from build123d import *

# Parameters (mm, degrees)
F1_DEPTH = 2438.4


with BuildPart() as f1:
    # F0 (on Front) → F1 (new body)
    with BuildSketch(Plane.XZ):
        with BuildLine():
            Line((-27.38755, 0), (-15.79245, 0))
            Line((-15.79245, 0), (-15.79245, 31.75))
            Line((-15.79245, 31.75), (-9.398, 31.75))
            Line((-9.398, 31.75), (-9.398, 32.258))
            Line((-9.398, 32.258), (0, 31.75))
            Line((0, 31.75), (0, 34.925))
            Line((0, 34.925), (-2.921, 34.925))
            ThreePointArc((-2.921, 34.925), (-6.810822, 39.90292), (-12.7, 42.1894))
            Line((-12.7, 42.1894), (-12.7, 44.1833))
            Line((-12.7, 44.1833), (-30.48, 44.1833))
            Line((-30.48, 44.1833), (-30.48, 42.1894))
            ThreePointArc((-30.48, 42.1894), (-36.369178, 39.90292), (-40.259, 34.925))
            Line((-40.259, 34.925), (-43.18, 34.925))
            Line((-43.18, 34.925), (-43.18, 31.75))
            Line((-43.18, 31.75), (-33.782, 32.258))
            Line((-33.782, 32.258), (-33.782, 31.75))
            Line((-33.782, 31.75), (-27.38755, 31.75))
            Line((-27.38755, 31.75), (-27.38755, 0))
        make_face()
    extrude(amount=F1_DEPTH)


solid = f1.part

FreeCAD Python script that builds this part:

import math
import FreeCAD as App
import Part
import Sketcher

V = App.Vector
Q = App.Units.Quantity

doc = App.newDocument("Part")
params = doc.addObject("Spreadsheet::Sheet", "Params")
for row, (alias, value) in enumerate([
    ("sketch1_width", "0.7 in"),
    ("sketch1_height", "1.25 in"),
    ("sketch1_height2", "0.02 in"),
    ("sketch1_width2", "0.115 in"),
    ("sketch1_height3", "0.125 in"),
    ("pad1_length", "96 in"),
], start=1):
    params.set(f"A{row}", alias)
    params.set(f"B{row}", "=" + value)
    params.setAlias(f"B{row}", alias)

body = doc.addObject("PartDesign::Body", "Body")

sketch1 = body.newObject("Sketcher::SketchObject", "Sketch")
sketch1.AttachmentSupport = (doc.getObject("XZ_Plane"), [""])
sketch1.MapMode = "FlatFace"
sketch1.addGeometry(Part.LineSegment(V(-27.38755, 0, 0), V(-15.79245, 0, 0)), False)
sketch1.addGeometry(Part.LineSegment(V(-15.79245, 0, 0), V(-15.79245, 31.75, 0)), False)
sketch1.addGeometry(Part.LineSegment(V(-15.79245, 31.75, 0), V(-9.398, 31.75, 0)), False)
sketch1.addGeometry(Part.LineSegment(V(-9.398, 31.75, 0), V(-9.398, 32.258, 0)), False)
sketch1.addGeometry(Part.LineSegment(V(-9.398, 32.258, 0), V(0, 31.75, 0)), False)
sketch1.addGeometry(Part.LineSegment(V(0, 31.75, 0), V(0, 34.925, 0)), False)
sketch1.addGeometry(Part.LineSegment(V(0, 34.925, 0), V(-2.921, 34.925, 0)), False)
sketch1.addGeometry(Part.ArcOfCircle(Part.Circle(V(-13.909225, 30.347377, 0), V(0, 0, 1), 11.903602), math.radians(22.61629), math.radians(84.16956)), False)
sketch1.addGeometry(Part.LineSegment(V(-12.7, 42.1894, 0), V(-12.7, 44.1833, 0)), False)
sketch1.addGeometry(Part.LineSegment(V(-12.7, 44.1833, 0), V(-30.48, 44.1833, 0)), False)
sketch1.addGeometry(Part.LineSegment(V(-30.48, 44.1833, 0), V(-30.48, 42.1894, 0)), False)
sketch1.addGeometry(Part.ArcOfCircle(Part.Circle(V(-29.270775, 30.347377, 0), V(0, 0, 1), 11.903602), math.radians(95.83044), math.radians(157.38371)), False)
sketch1.addGeometry(Part.LineSegment(V(-40.259, 34.925, 0), V(-43.18, 34.925, 0)), False)
sketch1.addGeometry(Part.LineSegment(V(-43.18, 34.925, 0), V(-43.18, 31.75, 0)), False)
sketch1.addGeometry(Part.LineSegment(V(-43.18, 31.75, 0), V(-33.782, 32.258, 0)), False)
sketch1.addGeometry(Part.LineSegment(V(-33.782, 32.258, 0), V(-33.782, 31.75, 0)), False)
sketch1.addGeometry(Part.LineSegment(V(-33.782, 31.75, 0), V(-27.38755, 31.75, 0)), False)
sketch1.addGeometry(Part.LineSegment(V(-27.38755, 31.75, 0), V(-27.38755, 0, 0)), False)
sketch1.addConstraint(Sketcher.Constraint("Coincident", 0, 2, 1, 1))
sketch1.addConstraint(Sketcher.Constraint("Coincident", 1, 2, 2, 1))
sketch1.addConstraint(Sketcher.Constraint("Coincident", 2, 2, 3, 1))
sketch1.addConstraint(Sketcher.Constraint("Coincident", 3, 2, 4, 1))
sketch1.addConstraint(Sketcher.Constraint("Coincident", 4, 2, 5, 1))
sketch1.addConstraint(Sketcher.Constraint("Coincident", 5, 2, 6, 1))
sketch1.addConstraint(Sketcher.Constraint("Coincident", 6, 2, 7, 1))
sketch1.addConstraint(Sketcher.Constraint("Coincident", 7, 2, 8, 1))
sketch1.addConstraint(Sketcher.Constraint("Coincident", 8, 2, 9, 1))
sketch1.addConstraint(Sketcher.Constraint("Coincident", 9, 2, 10, 1))
sketch1.addConstraint(Sketcher.Constraint("Coincident", 10, 2, 11, 1))
sketch1.addConstraint(Sketcher.Constraint("Coincident", 11, 2, 12, 1))
sketch1.addConstraint(Sketcher.Constraint("Coincident", 12, 2, 13, 1))
sketch1.addConstraint(Sketcher.Constraint("Coincident", 13, 2, 14, 1))
sketch1.addConstraint(Sketcher.Constraint("Coincident", 14, 2, 15, 1))
sketch1.addConstraint(Sketcher.Constraint("Coincident", 15, 2, 16, 1))
sketch1.addConstraint(Sketcher.Constraint("Coincident", 16, 2, 17, 1))
sketch1.addConstraint(Sketcher.Constraint("Coincident", 17, 2, 0, 1))
sketch1.addConstraint(Sketcher.Constraint("Horizontal", 0))
sketch1.addConstraint(Sketcher.Constraint("Vertical", 1))
sketch1.addConstraint(Sketcher.Constraint("Horizontal", 2))
sketch1.addConstraint(Sketcher.Constraint("Vertical", 3))
sketch1.addConstraint(Sketcher.Constraint("Vertical", 5))
sketch1.addConstraint(Sketcher.Constraint("Horizontal", 6))
sketch1.addConstraint(Sketcher.Constraint("Vertical", 8))
sketch1.addConstraint(Sketcher.Constraint("Horizontal", 9))
sketch1.addConstraint(Sketcher.Constraint("Vertical", 10))
sketch1.addConstraint(Sketcher.Constraint("Horizontal", 12))
sketch1.addConstraint(Sketcher.Constraint("Vertical", 13))
sketch1.addConstraint(Sketcher.Constraint("Vertical", 15))
sketch1.addConstraint(Sketcher.Constraint("Horizontal", 16))
sketch1.addConstraint(Sketcher.Constraint("Vertical", 17))
sketch1.addConstraint(Sketcher.Constraint("Equal", 7, 11))
sketch1.addConstraint(Sketcher.Constraint("PointOnObject", 0, 2, -1))
sketch1.addConstraint(Sketcher.Constraint("PointOnObject", 4, 2, -2))
sketch1.addConstraint(Sketcher.Constraint("Horizontal", 7, 3, 11, 3))
sketch1.addConstraint(Sketcher.Constraint("Horizontal", 2, 2, 4, 2))
sketch1.addConstraint(Sketcher.Constraint("Horizontal", 7, 2, 10, 2))
sketch1.addConstraint(Sketcher.Constraint("Horizontal", 6, 2, 11, 2))
sketch1.addConstraint(Sketcher.Constraint("Horizontal", 4, 2, 13, 2))
sketch1.addConstraint(Sketcher.Constraint("Horizontal", 3, 2, 14, 2))
sketch1.addConstraint(Sketcher.Constraint("Horizontal", 13, 2, 15, 2))
sketch1.addConstraint(Sketcher.Constraint("Equal", 6, 12))
sketch1.addConstraint(Sketcher.Constraint("Equal", 2, 16))
sketch1.addConstraint(Sketcher.Constraint("Equal", 4, 14))
sketch1.addConstraint(Sketcher.Constraint("DistanceX", 9, 2, 9, 1, Q("0.7 in")))
sketch1.addConstraint(Sketcher.Constraint("DistanceY", 1, 1, 1, 2, Q("1.25 in")))
sketch1.addConstraint(Sketcher.Constraint("DistanceY", 3, 1, 3, 2, Q("0.02 in")))
sketch1.addConstraint(Sketcher.Constraint("DistanceX", 7, 2, -1, 1, Q("0.5 in")))
sketch1.addConstraint(Sketcher.Constraint("DistanceX", 6, 2, 6, 1, Q("0.115 in")))
sketch1.addConstraint(Sketcher.Constraint("DistanceY", 5, 1, 5, 2, Q("0.125 in")))
sketch1.addConstraint(Sketcher.Constraint("DistanceX", 2, 2, -1, 1, Q("0.37 in")))
sketch1.addConstraint(Sketcher.Constraint("Radius", 7, Q("11.903602 mm")))
sketch1.addConstraint(Sketcher.Constraint("DistanceX", 0, 1, 0, 2, Q("0.4565 in")))
sketch1.addConstraint(Sketcher.Constraint("DistanceY", 8, 1, 8, 2, Q("0.0785 in")))
sketch1.addConstraint(Sketcher.Constraint("DistanceY", -1, 1, 7, 2, Q("1.661 in")))
sketch1.setExpression("Constraints[45]", "Params.sketch1_width")
sketch1.setExpression("Constraints[46]", "Params.sketch1_height")
sketch1.setExpression("Constraints[47]", "Params.sketch1_height2")
sketch1.setExpression("Constraints[49]", "Params.sketch1_width2")
sketch1.setExpression("Constraints[50]", "Params.sketch1_height3")
pad1 = body.newObject("PartDesign::Pad", "Pad")
pad1.Profile = sketch1
pad1.setExpression("Length", "Params.pad1_length")

doc.recompute()
